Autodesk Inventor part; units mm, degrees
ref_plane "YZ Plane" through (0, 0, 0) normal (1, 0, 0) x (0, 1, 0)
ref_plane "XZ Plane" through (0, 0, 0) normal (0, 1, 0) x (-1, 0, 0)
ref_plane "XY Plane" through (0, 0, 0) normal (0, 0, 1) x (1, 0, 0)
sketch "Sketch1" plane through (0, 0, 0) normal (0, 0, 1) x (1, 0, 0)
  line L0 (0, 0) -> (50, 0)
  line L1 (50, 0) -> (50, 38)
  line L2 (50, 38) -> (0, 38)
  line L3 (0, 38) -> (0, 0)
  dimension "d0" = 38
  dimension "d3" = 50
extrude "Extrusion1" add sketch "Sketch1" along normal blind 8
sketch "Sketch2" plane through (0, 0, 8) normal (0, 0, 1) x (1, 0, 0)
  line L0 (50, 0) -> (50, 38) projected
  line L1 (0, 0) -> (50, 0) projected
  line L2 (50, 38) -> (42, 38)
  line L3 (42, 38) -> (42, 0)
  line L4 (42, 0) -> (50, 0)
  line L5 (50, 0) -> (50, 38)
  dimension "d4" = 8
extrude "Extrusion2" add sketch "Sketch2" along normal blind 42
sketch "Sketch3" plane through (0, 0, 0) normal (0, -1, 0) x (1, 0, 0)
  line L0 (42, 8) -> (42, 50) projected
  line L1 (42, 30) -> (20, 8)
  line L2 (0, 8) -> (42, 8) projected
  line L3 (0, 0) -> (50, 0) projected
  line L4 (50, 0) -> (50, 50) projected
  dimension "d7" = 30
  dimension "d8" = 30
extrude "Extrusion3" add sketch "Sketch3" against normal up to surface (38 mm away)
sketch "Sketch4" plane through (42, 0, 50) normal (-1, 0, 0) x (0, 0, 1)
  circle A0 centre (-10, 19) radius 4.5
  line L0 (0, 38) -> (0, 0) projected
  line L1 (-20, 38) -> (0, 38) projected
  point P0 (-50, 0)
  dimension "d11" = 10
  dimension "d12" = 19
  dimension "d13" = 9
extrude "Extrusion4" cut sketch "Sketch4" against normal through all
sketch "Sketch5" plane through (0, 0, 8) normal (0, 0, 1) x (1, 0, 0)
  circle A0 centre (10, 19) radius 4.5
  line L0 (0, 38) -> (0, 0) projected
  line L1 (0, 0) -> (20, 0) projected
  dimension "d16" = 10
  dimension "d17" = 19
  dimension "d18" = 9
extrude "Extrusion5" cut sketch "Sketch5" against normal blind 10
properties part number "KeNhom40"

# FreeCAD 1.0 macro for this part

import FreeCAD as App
import Part
import Sketcher

V = App.Vector
Q = App.Units.Quantity

doc = App.newDocument("Part")
params = doc.addObject("Spreadsheet::Sheet", "Params")
for row, (alias, value) in enumerate([
    ("sketch1_width", "50 mm"),
    ("sketch1_height", "38 mm"),
    ("pad1_length", "8 mm"),
    ("sketch2_width", "8 mm"),
    ("sketch2_height", "38 mm"),
    ("pad2_length", "42 mm"),
    ("sketch3_width", "22 mm"),
    ("pad3_length", "38 mm"),
    ("sketch4_diameter", "9 mm"),
    ("sketch5_diameter", "9 mm"),
    ("pocket2_length", "10 mm"),
], start=1):
    params.set(f"A{row}", alias)
    params.set(f"B{row}", "=" + value)
    params.setAlias(f"B{row}", alias)

body = doc.addObject("PartDesign::Body", "Body")

# Sketch on XY plane
sketch1 = body.newObject("Sketcher::SketchObject", "Sketch")
sketch1.AttachmentSupport = (doc.getObject("XY_Plane"), [""])
sketch1.MapMode = "FlatFace"
sketch1.addGeometry([
    Part.LineSegment(V(0, 38, 0), V(0, 0, 0)),
    Part.LineSegment(V(0, 0, 0), V(50, 0, 0)),
    Part.LineSegment(V(50, 0, 0), V(50, 38, 0)),
    Part.LineSegment(V(50, 38, 0), V(0, 38, 0)),
], False)
sketch1.addConstraint([
    Sketcher.Constraint("Coincident", 0, 2, 1, 1),
    Sketcher.Constraint("Coincident", 1, 2, 2, 1),
    Sketcher.Constraint("Coincident", 2, 2, 3, 1),
    Sketcher.Constraint("Coincident", 3, 2, 0, 1),
    Sketcher.Constraint("Vertical", 0),
    Sketcher.Constraint("Horizontal", 1),
    Sketcher.Constraint("Vertical", 2),
    Sketcher.Constraint("Horizontal", 3),
    Sketcher.Constraint("Coincident", 0, 2, -1, 1),
    Sketcher.Constraint("DistanceX", 1, 1, 1, 2, Q("50 mm")),
    Sketcher.Constraint("DistanceY", 0, 2, 0, 1, Q("38 mm")),
])
sketch1.setExpression("Constraints[9]", "Params.sketch1_width")
sketch1.setExpression("Constraints[10]", "Params.sketch1_height")
pad1 = body.newObject("PartDesign::Pad", "Pad")
pad1.Profile = sketch1
pad1.setExpression("Length", "Params.pad1_length")

# Sketch on XY plane
sketch2 = body.newObject("Sketcher::SketchObject", "Sketch001")
sketch2.AttachmentSupport = (doc.getObject("XY_Plane"), [""])
sketch2.MapMode = "FlatFace"
sketch2.AttachmentOffset = App.Placement(V(0, 0, 8), App.Rotation())
sketch2.addGeometry([
    Part.LineSegment(V(42, 0, 0), V(50, 0, 0)),
    Part.LineSegment(V(50, 0, 0), V(50, 38, 0)),
    Part.LineSegment(V(50, 38, 0), V(42, 38, 0)),
    Part.LineSegment(V(42, 38, 0), V(42, 0, 0)),
], False)
sketch2.addConstraint([
    Sketcher.Constraint("Coincident", 0, 2, 1, 1),
    Sketcher.Constraint("Coincident", 1, 2, 2, 1),
    Sketcher.Constraint("Coincident", 2, 2, 3, 1),
    Sketcher.Constraint("Coincident", 3, 2, 0, 1),
    Sketcher.Constraint("Horizontal", 0),
    Sketcher.Constraint("Vertical", 1),
    Sketcher.Constraint("Horizontal", 2),
    Sketcher.Constraint("Vertical", 3),
    Sketcher.Constraint("PointOnObject", 0, 2, -1),
    Sketcher.Constraint("DistanceX", 0, 1, 0, 2, Q("8 mm")),
    Sketcher.Constraint("DistanceY", 1, 1, 1, 2, Q("38 mm")),
    Sketcher.Constraint("DistanceX", -1, 1, 0, 2, Q("50 mm")),
])
sketch2.setExpression("Constraints[9]", "Params.sketch2_width")
sketch2.setExpression("Constraints[10]", "Params.sketch2_height")
pad2 = body.newObject("PartDesign::Pad", "Pad001")
pad2.Profile = sketch2
pad2.setExpression("Length", "Params.pad2_length")

# Sketch on XZ plane
sketch3 = body.newObject("Sketcher::SketchObject", "Sketch002")
sketch3.AttachmentSupport = (doc.getObject("XZ_Plane"), [""])
sketch3.MapMode = "FlatFace"
sketch3.addGeometry([
    Part.LineSegment(V(20, 8, 0), V(42, 8, 0)),
    Part.LineSegment(V(42, 8, 0), V(42, 30, 0)),
    Part.LineSegment(V(42, 30, 0), V(20, 8, 0)),
], False)
sketch3.addConstraint([
    Sketcher.Constraint("Coincident", 0, 2, 1, 1),
    Sketcher.Constraint("Coincident", 1, 2, 2, 1),
    Sketcher.Constraint("Coincident", 2, 2, 0, 1),
    Sketcher.Constraint("Horizontal", 0),
    Sketcher.Constraint("Vertical", 1),
    Sketcher.Constraint("Equal", 0, 1),
    Sketcher.Constraint("DistanceY", -1, 1, 1, 2, Q("30 mm")),
    Sketcher.Constraint("DistanceX", 0, 1, 0, 2, Q("22 mm")),
    Sketcher.Constraint("DistanceX", -1, 1, 0, 2, Q("42 mm")),
])
sketch3.setExpression("Constraints[7]", "Params.sketch3_width")
pad3 = body.newObject("PartDesign::Pad", "Pad002")
pad3.Profile = sketch3
pad3.setExpression("Length", "Params.pad3_length")
pad3.Reversed = True

# Sketch on YZ plane
sketch4 = body.newObject("Sketcher::SketchObject", "Sketch003")
sketch4.AttachmentSupport = (doc.getObject("YZ_Plane"), [""])
sketch4.MapMode = "FlatFace"
sketch4.AttachmentOffset = App.Placement(V(0, 0, 42), App.Rotation())
sketch4.addGeometry(Part.Circle(V(19, 40, 0), V(0, 0, 1), 4.5), False)
sketch4.addConstraint([
    Sketcher.Constraint("Diameter", 0, Q("9 mm")),
    Sketcher.Constraint("DistanceX", -1, 1, 0, 3, Q("19 mm")),
    Sketcher.Constraint("DistanceY", -1, 1, 0, 3, Q("40 mm")),
])
sketch4.setExpression("Constraints[0]", "Params.sketch4_diameter")
pocket1 = body.newObject("PartDesign::Pocket", "Pocket")
pocket1.Profile = sketch4
pocket1.Type = "ThroughAll"
pocket1.Reversed = True

# Sketch on XY plane
sketch5 = body.newObject("Sketcher::SketchObject", "Sketch004")
sketch5.AttachmentSupport = (doc.getObject("XY_Plane"), [""])
sketch5.MapMode = "FlatFace"
sketch5.AttachmentOffset = App.Placement(V(0, 0, 8), App.Rotation())
sketch5.addGeometry(Part.Circle(V(10, 19, 0), V(0, 0, 1), 4.5), False)
sketch5.addConstraint([
    Sketcher.Constraint("Diameter", 0, Q("9 mm")),
    Sketcher.Constraint("DistanceX", -1, 1, 0, 3, Q("10 mm")),
    Sketcher.Constraint("DistanceY", -1, 1, 0, 3, Q("19 mm")),
])
sketch5.setExpression("Constraints[0]", "Params.sketch5_diameter")
pocket2 = body.newObject("PartDesign::Pocket", "Pocket001")
pocket2.Profile = sketch5
pocket2.setExpression("Length", "Params.pocket2_length")

doc.recompute()
